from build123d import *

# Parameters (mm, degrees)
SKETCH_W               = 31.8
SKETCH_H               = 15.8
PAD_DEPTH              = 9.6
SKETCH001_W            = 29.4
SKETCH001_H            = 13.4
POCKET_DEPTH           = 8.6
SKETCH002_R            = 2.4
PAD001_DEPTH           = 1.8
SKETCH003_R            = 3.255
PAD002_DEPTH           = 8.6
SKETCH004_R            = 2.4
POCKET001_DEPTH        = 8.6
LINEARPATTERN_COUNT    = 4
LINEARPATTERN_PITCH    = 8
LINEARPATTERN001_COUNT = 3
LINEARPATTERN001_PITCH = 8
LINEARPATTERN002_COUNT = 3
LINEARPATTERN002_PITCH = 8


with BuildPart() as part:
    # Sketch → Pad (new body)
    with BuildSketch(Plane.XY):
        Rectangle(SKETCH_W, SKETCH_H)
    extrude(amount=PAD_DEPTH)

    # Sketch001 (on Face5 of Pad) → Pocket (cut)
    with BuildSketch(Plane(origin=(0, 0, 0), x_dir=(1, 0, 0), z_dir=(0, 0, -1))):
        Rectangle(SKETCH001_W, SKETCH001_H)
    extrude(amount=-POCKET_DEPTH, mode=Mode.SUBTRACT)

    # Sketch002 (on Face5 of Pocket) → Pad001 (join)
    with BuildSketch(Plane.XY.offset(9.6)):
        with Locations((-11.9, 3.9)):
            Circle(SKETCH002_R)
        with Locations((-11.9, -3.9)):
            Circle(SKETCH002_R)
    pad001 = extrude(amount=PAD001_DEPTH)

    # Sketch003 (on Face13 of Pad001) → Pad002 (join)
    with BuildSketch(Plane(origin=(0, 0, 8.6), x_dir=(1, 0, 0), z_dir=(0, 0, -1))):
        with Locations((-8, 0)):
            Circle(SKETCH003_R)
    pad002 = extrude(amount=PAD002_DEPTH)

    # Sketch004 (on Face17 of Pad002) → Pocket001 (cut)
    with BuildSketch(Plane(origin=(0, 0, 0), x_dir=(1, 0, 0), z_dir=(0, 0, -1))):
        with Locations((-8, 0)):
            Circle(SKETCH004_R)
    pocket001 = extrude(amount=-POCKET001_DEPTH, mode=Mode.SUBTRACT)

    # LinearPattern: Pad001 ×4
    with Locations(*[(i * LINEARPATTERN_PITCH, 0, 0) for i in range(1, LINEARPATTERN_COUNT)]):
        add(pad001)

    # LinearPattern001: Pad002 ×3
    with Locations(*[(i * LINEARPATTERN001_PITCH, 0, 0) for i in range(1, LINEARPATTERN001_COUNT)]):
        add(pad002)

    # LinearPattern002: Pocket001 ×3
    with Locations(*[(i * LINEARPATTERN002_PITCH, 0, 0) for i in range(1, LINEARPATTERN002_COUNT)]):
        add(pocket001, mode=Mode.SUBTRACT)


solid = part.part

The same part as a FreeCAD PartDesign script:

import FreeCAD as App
import Part
import Sketcher
Q = App.Units.Quantity

doc = App.newDocument("Part")
body = doc.addObject("PartDesign::Body", "Body")

# Sketch on XY plane
sketch1 = doc.addObject("Sketcher::SketchObject", "Sketch")
body.addObject(sketch1)
sketch1.AttachmentSupport = (doc.XY_Plane, [""])
sketch1.MapMode = "FlatFace"
sketch1.addGeometry([
    Part.LineSegment(App.Vector(-15.9, 7.9, 0), App.Vector(-15.9, -7.9, 0)),
    Part.LineSegment(App.Vector(-15.9, -7.9, 0), App.Vector(15.9, -7.9, 0)),
    Part.LineSegment(App.Vector(15.9, -7.9, 0), App.Vector(15.9, 7.9, 0)),
    Part.LineSegment(App.Vector(15.9, 7.9, 0), App.Vector(-15.9, 7.9, 0)),
], False)
sketch1.addConstraint([
    Sketcher.Constraint("Coincident", 0, 2, 1, 1),
    Sketcher.Constraint("Coincident", 1, 2, 2, 1),
    Sketcher.Constraint("Coincident", 2, 2, 3, 1),
    Sketcher.Constraint("Coincident", 3, 2, 0, 1),
    Sketcher.Constraint("Vertical", 0),
    Sketcher.Constraint("Horizontal", 1),
    Sketcher.Constraint("Vertical", 2),
    Sketcher.Constraint("Horizontal", 3),
    Sketcher.Constraint("Symmetric", 0, 2, 2, 2, -1, 1),
    Sketcher.Constraint("DistanceX", 1, 1, 1, 2, Q("31.8 mm")),
    Sketcher.Constraint("DistanceY", 0, 2, 0, 1, Q("15.8 mm")),
])
pad1 = doc.addObject("PartDesign::Pad", "Pad")
body.addObject(pad1)
pad1.Profile = sketch1
pad1.Length = 9.6

# Sketch on XY plane
sketch2 = doc.addObject("Sketcher::SketchObject", "Sketch001")
body.addObject(sketch2)
sketch2.AttachmentSupport = (doc.XY_Plane, [""])
sketch2.MapMode = "FlatFace"
sketch2.addGeometry([
    Part.LineSegment(App.Vector(-14.7, -6.7, 0), App.Vector(-14.7, 6.7, 0)),
    Part.LineSegment(App.Vector(-14.7, 6.7, 0), App.Vector(14.7, 6.7, 0)),
    Part.LineSegment(App.Vector(14.7, 6.7, 0), App.Vector(14.7, -6.7, 0)),
    Part.LineSegment(App.Vector(14.7, -6.7, 0), App.Vector(-14.7, -6.7, 0)),
], False)
sketch2.addConstraint([
    Sketcher.Constraint("Coincident", 0, 2, 1, 1),
    Sketcher.Constraint("Coincident", 1, 2, 2, 1),
    Sketcher.Constraint("Coincident", 2, 2, 3, 1),
    Sketcher.Constraint("Coincident", 3, 2, 0, 1),
    Sketcher.Constraint("Vertical", 0),
    Sketcher.Constraint("Horizontal", 1),
    Sketcher.Constraint("Vertical", 2),
    Sketcher.Constraint("Horizontal", 3),
    Sketcher.Constraint("Symmetric", 0, 2, 2, 2, -1, 1),
    Sketcher.Constraint("DistanceX", 1, 1, 1, 2, Q("29.4 mm")),
    Sketcher.Constraint("DistanceY", 0, 1, 0, 2, Q("13.4 mm")),
])
pocket1 = doc.addObject("PartDesign::Pocket", "Pocket")
body.addObject(pocket1)
pocket1.Profile = sketch2
pocket1.Length = 8.6
pocket1.Reversed = True

# Sketch on XY plane
sketch3 = doc.addObject("Sketcher::SketchObject", "Sketch002")
body.addObject(sketch3)
sketch3.AttachmentSupport = (doc.XY_Plane, [""])
sketch3.MapMode = "FlatFace"
sketch3.AttachmentOffset = App.Placement(App.Vector(0, 0, 9.6), App.Rotation())
sketch3.addGeometry([
    Part.Circle(App.Vector(-11.9, 3.9, 0), App.Vector(0, 0, 1), 2.4),
    Part.Circle(App.Vector(-11.9, -3.9, 0), App.Vector(0, 0, 1), 2.4),
], False)
sketch3.addConstraint([
    Sketcher.Constraint("Equal", 0, 1),
    Sketcher.Constraint("Symmetric", 0, 3, 1, 3, -1),
    Sketcher.Constraint("Diameter", 0, Q("4.8 mm")),
    Sketcher.Constraint("DistanceX", 0, 3, -1, 1, Q("11.9 mm")),
    Sketcher.Constraint("DistanceY", -1, 1, 0, 3, Q("3.9 mm")),
])
pad2 = doc.addObject("PartDesign::Pad", "Pad001")
body.addObject(pad2)
pad2.Profile = sketch3
pad2.Length = 1.8

# Sketch on XY plane
sketch4 = doc.addObject("Sketcher::SketchObject", "Sketch003")
body.addObject(sketch4)
sketch4.AttachmentSupport = (doc.XY_Plane, [""])
sketch4.MapMode = "FlatFace"
sketch4.AttachmentOffset = App.Placement(App.Vector(0, 0, 8.6), App.Rotation())
sketch4.addGeometry(Part.Circle(App.Vector(-8, 0, 0), App.Vector(0, 0, 1), 3.255), False)
sketch4.addConstraint([
    Sketcher.Constraint("PointOnObject", 0, 3, -1),
    Sketcher.Constraint("Diameter", 0, Q("6.51 mm")),
    Sketcher.Constraint("DistanceX", 0, 3, -1, 1, Q("8 mm")),
])
pad3 = doc.addObject("PartDesign::Pad", "Pad002")
body.addObject(pad3)
pad3.Profile = sketch4
pad3.Length = 8.6
pad3.Reversed = True

# Sketch on XY plane
sketch5 = doc.addObject("Sketcher::SketchObject", "Sketch004")
body.addObject(sketch5)
sketch5.AttachmentSupport = (doc.XY_Plane, [""])
sketch5.MapMode = "FlatFace"
sketch5.addGeometry(Part.Circle(App.Vector(-8, 0, 0), App.Vector(0, 0, 1), 2.4), False)
sketch5.addConstraint([
    Sketcher.Constraint("PointOnObject", 0, 3, -1),
    Sketcher.Constraint("Diameter", 0, Q("4.8 mm")),
    Sketcher.Constraint("DistanceX", 0, 3, -1, 1, Q("8 mm")),
])
pocket2 = doc.addObject("PartDesign::Pocket", "Pocket001")
body.addObject(pocket2)
pocket2.Profile = sketch5
pocket2.Length = 8.6
pocket2.Reversed = True
doc.recompute()

linearpattern = doc.addObject("PartDesign::LinearPattern", "LinearPattern")
body.addObject(linearpattern)
linearpattern.Originals = [pad2]
linearpattern.Direction = (doc.X_Axis, [""])
linearpattern.Mode = "offset"
linearpattern.Offset = 8
linearpattern.Occurrences = 4
body.Tip = linearpattern
doc.recompute()

linearpattern2 = doc.addObject("PartDesign::LinearPattern", "LinearPattern001")
body.addObject(linearpattern2)
linearpattern2.Originals = [pad3]
linearpattern2.Direction = (doc.X_Axis, [""])
linearpattern2.Mode = "offset"
linearpattern2.Offset = 8
linearpattern2.Occurrences = 3
body.Tip = linearpattern2
doc.recompute()

linearpattern3 = doc.addObject("PartDesign::LinearPattern", "LinearPattern002")
body.addObject(linearpattern3)
linearpattern3.Originals = [pocket2]
linearpattern3.Direction = (doc.X_Axis, [""])
linearpattern3.Mode = "offset"
linearpattern3.Offset = 8
linearpattern3.Occurrences = 3
body.Tip = linearpattern3

doc.recompute()
